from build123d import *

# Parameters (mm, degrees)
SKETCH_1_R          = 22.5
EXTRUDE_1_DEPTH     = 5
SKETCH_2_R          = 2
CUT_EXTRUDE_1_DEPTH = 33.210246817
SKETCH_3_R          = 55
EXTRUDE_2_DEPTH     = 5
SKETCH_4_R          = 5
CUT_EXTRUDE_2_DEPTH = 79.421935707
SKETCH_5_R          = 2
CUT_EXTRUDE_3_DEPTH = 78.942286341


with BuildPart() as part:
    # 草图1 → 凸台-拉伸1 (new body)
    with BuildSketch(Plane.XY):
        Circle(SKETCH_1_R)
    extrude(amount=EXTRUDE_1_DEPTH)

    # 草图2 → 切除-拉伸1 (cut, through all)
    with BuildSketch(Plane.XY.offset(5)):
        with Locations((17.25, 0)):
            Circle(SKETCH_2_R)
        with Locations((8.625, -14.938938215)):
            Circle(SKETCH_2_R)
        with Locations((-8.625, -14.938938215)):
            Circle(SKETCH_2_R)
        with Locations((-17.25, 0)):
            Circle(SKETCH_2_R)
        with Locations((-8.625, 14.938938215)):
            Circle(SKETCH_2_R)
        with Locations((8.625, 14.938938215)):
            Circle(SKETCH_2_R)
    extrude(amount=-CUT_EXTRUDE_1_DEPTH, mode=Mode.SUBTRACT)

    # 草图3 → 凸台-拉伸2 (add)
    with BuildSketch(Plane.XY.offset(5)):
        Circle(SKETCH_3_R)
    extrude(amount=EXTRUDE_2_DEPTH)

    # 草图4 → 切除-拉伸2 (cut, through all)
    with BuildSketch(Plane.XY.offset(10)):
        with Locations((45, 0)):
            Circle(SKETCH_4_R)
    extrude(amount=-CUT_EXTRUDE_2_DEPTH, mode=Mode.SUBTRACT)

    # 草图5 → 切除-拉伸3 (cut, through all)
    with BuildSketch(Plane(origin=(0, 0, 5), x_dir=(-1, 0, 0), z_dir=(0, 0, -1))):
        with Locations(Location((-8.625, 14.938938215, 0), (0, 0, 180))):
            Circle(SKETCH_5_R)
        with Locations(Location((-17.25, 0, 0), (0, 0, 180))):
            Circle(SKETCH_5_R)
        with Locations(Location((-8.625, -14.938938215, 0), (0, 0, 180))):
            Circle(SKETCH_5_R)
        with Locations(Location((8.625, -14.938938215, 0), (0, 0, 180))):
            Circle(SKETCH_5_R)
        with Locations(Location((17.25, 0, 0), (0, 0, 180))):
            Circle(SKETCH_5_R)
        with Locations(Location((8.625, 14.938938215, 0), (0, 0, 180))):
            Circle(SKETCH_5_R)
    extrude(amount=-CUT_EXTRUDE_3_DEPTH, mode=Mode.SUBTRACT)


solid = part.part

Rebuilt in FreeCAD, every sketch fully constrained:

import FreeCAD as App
import Part
import Sketcher

V = App.Vector
Q = App.Units.Quantity

doc = App.newDocument("Part")
body = doc.addObject("PartDesign::Body", "Body")

# Sketch on XY plane
sketch1 = body.newObject("Sketcher::SketchObject", "Sketch")
sketch1.AttachmentSupport = (doc.getObject("XY_Plane"), [""])
sketch1.MapMode = "FlatFace"
sketch1.addGeometry(Part.Circle(V(0, 0, 0), V(0, 0, 1), 22), False)
sketch1.addConstraint([
    Sketcher.Constraint("Coincident", 0, 3, -1, 1),
    Sketcher.Constraint("Diameter", 0, Q("45 mm")),
])
pad1 = body.newObject("PartDesign::Pad", "Pad")
pad1.Profile = sketch1
pad1.Length = 5

# Sketch on XY plane
sketch2 = body.newObject("Sketcher::SketchObject", "Sketch001")
sketch2.AttachmentSupport = (doc.getObject("XY_Plane"), [""])
sketch2.MapMode = "FlatFace"
sketch2.AttachmentOffset = App.Placement(V(0, 0, 5), App.Rotation())
sketch2.addGeometry([
    Part.Circle(V(17.2, 0, 0), V(0, 0, 1), 2),  # 0
    Part.Circle(V(8.6, -14.9, 0), V(0, 0, 1), 2),  # 1
    Part.Circle(V(-8.6, -14.9, 0), V(0, 0, 1), 2),  # 2
    Part.Circle(V(-17.2, 0, 0), V(0, 0, 1), 2),  # 3
    Part.Circle(V(-8.6, 14.9, 0), V(0, 0, 1), 2),  # 4
    Part.Circle(V(8.6, 14.9, 0), V(0, 0, 1), 2),  # 5
], False)
sketch2.addConstraint([
    Sketcher.Constraint("Equal", 0, 1),
    Sketcher.Constraint("Equal", 1, 2),
    Sketcher.Constraint("Equal", 2, 3),
    Sketcher.Constraint("Equal", 3, 4),
    Sketcher.Constraint("Equal", 4, 5),
    Sketcher.Constraint("Symmetric", 0, 3, 3, 3, -1, 1),
    Sketcher.Constraint("Symmetric", 1, 3, 4, 3, -1, 1),
    Sketcher.Constraint("Symmetric", 2, 3, 5, 3, -1, 1),
    Sketcher.Constraint("Symmetric", 1, 3, 2, 3, -2),
    Sketcher.Constraint("PointOnObject", 0, 3, -1),
    Sketcher.Constraint("Diameter", 0, Q("4 mm")),
    Sketcher.Constraint("DistanceX", 3, 3, 0, 3, Q("34.5 mm")),
    Sketcher.Constraint("DistanceX", 2, 3, 1, 3, Q("17.25 mm")),
    Sketcher.Constraint("DistanceY", 1, 3, -1, 1, Q("14.938938 mm")),
])
pocket1 = body.newObject("PartDesign::Pocket", "Pocket")
pocket1.Profile = sketch2
pocket1.Type = "ThroughAll"

# Sketch on XY plane
sketch3 = body.newObject("Sketcher::SketchObject", "Sketch002")
sketch3.AttachmentSupport = (doc.getObject("XY_Plane"), [""])
sketch3.MapMode = "FlatFace"
sketch3.AttachmentOffset = App.Placement(V(0, 0, 5), App.Rotation())
sketch3.addGeometry(Part.Circle(V(0, 0, 0), V(0, 0, 1), 55), False)
sketch3.addConstraint([
    Sketcher.Constraint("Coincident", 0, 3, -1, 1),
    Sketcher.Constraint("Diameter", 0, Q("110 mm")),
])
pad2 = body.newObject("PartDesign::Pad", "Pad001")
pad2.Profile = sketch3
pad2.Length = 5

# Sketch on XY plane
sketch4 = body.newObject("Sketcher::SketchObject", "Sketch003")
sketch4.AttachmentSupport = (doc.getObject("XY_Plane"), [""])
sketch4.MapMode = "FlatFace"
sketch4.AttachmentOffset = App.Placement(V(0, 0, 10), App.Rotation())
sketch4.addGeometry(Part.Circle(V(45, 0, 0), V(0, 0, 1), 5), False)
sketch4.addConstraint([
    Sketcher.Constraint("PointOnObject", 0, 3, -1),
    Sketcher.Constraint("Diameter", 0, Q("10 mm")),
    Sketcher.Constraint("DistanceX", -1, 1, 0, 3, Q("45 mm")),
])
pocket2 = body.newObject("PartDesign::Pocket", "Pocket001")
pocket2.Profile = sketch4
pocket2.Type = "ThroughAll"

# Sketch on XY plane
sketch5 = body.newObject("Sketcher::SketchObject", "Sketch004")
sketch5.AttachmentSupport = (doc.getObject("XY_Plane"), [""])
sketch5.MapMode = "FlatFace"
sketch5.AttachmentOffset = App.Placement(V(0, 0, 5), App.Rotation())
sketch5.addGeometry([
    Part.Circle(V(8.6, 14.9, 0), V(0, 0, 1), 2),  # 0
    Part.Circle(V(17.2, 0, 0), V(0, 0, 1), 2),  # 1
    Part.Circle(V(8.6, -14.9, 0), V(0, 0, 1), 2),  # 2
    Part.Circle(V(-8.6, -14.9, 0), V(0, 0, 1), 2),  # 3
    Part.Circle(V(-17.2, 0, 0), V(0, 0, 1), 2),  # 4
    Part.Circle(V(-8.6, 14.9, 0), V(0, 0, 1), 2),  # 5
], False)
sketch5.addConstraint([
    Sketcher.Constraint("Equal", 0, 1),
    Sketcher.Constraint("Equal", 1, 2),
    Sketcher.Constraint("Equal", 2, 3),
    Sketcher.Constraint("Equal", 3, 4),
    Sketcher.Constraint("Equal", 4, 5),
    Sketcher.Constraint("Symmetric", 0, 3, 3, 3, -1, 1),
    Sketcher.Constraint("Symmetric", 1, 3, 4, 3, -1, 1),
    Sketcher.Constraint("Symmetric", 2, 3, 5, 3, -1, 1),
    Sketcher.Constraint("Symmetric", 2, 3, 3, 3, -2),
    Sketcher.Constraint("PointOnObject", 1, 3, -1),
    Sketcher.Constraint("Diameter", 0, Q("4 mm")),
    Sketcher.Constraint("DistanceX", 4, 3, 1, 3, Q("34.5 mm")),
    Sketcher.Constraint("DistanceX", 3, 3, 2, 3, Q("17.25 mm")),
    Sketcher.Constraint("DistanceY", -1, 1, 0, 3, Q("14.938938 mm")),
])
pocket3 = body.newObject("PartDesign::Pocket", "Pocket002")
pocket3.Profile = sketch5
pocket3.Type = "ThroughAll"
pocket3.Reversed = True

doc.recompute()
